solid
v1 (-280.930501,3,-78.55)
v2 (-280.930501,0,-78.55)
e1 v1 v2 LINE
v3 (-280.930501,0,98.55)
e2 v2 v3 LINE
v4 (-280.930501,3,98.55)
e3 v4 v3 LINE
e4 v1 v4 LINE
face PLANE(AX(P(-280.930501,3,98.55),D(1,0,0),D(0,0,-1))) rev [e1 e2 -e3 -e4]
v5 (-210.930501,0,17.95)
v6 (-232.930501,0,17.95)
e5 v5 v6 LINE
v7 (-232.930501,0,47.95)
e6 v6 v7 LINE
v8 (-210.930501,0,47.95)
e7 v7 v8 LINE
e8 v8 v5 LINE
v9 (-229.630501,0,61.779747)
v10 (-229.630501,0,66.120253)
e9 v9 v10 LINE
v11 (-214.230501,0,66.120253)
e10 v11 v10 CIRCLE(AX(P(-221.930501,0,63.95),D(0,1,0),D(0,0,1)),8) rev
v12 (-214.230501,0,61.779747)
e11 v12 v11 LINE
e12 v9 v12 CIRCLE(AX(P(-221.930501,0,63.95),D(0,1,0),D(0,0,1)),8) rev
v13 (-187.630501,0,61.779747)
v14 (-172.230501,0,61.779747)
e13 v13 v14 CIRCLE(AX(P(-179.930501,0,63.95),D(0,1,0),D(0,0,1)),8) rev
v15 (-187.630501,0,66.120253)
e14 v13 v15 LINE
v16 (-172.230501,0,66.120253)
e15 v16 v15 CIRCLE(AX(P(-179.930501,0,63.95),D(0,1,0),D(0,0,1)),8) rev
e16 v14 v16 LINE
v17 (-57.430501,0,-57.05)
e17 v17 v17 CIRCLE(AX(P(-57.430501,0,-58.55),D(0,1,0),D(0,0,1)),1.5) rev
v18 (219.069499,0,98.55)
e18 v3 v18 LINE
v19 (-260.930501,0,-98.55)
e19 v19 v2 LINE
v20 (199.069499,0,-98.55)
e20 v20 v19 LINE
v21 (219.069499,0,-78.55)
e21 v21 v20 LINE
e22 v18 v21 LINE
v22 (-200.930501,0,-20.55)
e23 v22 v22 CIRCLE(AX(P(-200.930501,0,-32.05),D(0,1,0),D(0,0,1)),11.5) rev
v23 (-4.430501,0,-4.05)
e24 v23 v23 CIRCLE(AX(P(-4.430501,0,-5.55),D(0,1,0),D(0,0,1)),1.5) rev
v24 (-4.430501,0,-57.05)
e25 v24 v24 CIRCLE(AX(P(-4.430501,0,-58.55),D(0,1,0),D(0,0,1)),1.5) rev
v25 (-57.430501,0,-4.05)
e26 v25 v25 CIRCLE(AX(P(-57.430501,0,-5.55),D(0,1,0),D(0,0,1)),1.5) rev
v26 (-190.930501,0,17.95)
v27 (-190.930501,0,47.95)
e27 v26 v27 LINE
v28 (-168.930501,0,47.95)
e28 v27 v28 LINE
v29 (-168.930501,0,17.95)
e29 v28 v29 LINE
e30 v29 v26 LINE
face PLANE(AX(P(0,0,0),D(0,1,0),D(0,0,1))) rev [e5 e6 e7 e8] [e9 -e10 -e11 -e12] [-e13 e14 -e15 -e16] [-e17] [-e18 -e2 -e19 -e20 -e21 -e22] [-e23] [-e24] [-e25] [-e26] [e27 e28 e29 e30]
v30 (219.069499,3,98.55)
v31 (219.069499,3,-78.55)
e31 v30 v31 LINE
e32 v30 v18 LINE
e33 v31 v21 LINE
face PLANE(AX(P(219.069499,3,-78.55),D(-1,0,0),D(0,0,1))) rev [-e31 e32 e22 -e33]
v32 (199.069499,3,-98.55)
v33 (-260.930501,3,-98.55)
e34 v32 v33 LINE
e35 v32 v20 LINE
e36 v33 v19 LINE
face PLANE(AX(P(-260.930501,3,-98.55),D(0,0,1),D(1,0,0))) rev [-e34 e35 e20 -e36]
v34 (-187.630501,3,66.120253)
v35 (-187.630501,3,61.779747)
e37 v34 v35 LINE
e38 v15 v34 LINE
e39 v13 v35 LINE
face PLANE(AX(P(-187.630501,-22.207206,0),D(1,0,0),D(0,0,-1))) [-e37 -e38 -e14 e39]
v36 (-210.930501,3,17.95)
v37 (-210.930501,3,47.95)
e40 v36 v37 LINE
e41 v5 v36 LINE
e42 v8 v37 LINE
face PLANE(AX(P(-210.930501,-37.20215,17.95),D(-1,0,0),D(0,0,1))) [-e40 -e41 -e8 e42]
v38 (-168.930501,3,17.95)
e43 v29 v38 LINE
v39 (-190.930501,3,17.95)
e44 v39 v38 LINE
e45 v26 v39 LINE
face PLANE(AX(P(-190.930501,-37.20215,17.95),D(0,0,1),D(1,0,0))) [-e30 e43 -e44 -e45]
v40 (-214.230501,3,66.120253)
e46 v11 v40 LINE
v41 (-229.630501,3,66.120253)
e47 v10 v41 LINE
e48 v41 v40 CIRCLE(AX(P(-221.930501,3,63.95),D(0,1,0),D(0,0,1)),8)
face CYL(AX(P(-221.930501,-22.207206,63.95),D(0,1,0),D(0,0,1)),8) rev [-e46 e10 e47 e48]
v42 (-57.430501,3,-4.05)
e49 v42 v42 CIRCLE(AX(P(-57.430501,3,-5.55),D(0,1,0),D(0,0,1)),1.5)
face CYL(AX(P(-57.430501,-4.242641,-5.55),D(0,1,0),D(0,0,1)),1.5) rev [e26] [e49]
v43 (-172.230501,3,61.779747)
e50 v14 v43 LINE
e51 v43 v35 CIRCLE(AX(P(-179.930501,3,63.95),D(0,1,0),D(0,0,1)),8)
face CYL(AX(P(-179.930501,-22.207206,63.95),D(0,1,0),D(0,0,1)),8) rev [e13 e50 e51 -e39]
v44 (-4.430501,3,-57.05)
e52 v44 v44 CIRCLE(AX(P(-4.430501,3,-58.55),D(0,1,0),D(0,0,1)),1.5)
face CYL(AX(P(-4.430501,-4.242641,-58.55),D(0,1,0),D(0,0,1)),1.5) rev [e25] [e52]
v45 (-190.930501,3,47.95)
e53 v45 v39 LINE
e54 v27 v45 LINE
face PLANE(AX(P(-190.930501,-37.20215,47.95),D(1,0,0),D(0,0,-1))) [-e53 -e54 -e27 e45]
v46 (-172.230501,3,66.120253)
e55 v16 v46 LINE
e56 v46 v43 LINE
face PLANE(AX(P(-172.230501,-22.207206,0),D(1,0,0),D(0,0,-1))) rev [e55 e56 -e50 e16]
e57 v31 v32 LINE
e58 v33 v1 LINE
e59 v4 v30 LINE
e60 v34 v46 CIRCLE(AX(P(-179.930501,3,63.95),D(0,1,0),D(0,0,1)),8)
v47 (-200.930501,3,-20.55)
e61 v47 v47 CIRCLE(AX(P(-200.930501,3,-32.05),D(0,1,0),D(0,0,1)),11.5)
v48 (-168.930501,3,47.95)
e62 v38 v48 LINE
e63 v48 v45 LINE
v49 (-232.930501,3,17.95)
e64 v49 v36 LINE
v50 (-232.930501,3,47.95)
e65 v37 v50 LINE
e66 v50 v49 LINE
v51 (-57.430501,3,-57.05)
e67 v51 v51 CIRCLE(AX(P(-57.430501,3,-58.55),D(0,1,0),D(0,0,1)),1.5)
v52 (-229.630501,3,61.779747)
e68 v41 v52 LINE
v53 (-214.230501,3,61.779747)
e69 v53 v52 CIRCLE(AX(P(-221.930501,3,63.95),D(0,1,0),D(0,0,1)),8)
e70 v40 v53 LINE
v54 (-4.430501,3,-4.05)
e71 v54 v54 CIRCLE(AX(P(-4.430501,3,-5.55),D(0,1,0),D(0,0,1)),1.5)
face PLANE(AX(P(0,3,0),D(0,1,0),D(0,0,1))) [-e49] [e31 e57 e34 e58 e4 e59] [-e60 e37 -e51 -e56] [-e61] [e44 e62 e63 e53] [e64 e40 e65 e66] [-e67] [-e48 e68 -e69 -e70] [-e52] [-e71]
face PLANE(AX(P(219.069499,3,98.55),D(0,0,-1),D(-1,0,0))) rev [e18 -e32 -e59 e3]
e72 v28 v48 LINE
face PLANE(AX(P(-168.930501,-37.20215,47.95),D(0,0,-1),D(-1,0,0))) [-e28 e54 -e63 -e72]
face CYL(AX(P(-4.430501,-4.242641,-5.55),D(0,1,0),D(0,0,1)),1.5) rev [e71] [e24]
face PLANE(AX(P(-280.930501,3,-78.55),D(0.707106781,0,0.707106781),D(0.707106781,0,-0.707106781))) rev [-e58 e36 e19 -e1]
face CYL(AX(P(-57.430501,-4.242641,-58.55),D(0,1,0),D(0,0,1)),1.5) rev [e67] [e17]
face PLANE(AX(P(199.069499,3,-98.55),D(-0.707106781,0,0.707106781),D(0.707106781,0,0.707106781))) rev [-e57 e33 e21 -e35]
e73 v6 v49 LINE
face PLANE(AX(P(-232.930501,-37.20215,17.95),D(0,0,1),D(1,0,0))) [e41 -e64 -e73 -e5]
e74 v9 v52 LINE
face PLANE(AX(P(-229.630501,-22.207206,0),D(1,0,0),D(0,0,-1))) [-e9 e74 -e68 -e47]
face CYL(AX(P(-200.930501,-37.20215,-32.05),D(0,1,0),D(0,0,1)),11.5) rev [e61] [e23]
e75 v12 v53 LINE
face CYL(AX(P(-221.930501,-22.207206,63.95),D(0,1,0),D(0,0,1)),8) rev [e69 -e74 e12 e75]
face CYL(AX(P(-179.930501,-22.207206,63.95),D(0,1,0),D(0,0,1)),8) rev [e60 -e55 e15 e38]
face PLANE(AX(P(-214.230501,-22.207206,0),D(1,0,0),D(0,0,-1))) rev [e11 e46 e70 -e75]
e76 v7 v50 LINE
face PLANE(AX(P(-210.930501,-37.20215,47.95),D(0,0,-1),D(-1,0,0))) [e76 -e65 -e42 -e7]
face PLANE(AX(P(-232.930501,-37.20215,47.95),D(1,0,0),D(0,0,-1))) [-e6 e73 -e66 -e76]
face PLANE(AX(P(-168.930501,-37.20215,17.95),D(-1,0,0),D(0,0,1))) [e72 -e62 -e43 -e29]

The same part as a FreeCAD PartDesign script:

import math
import FreeCAD as App
import Part
import Sketcher

doc = App.newDocument("Part")
params = doc.addObject("Spreadsheet::Sheet", "Params")
for row, (alias, value) in enumerate([
    ("sketch1_width", "460 mm"),
    ("sketch1_width2", "500 mm"),
    ("sketch1_height", "177.1 mm"),
    ("pad1_length", "3 mm"),
    ("sketch2_diameter", "3 mm"),
    ("pocket1_length", "3 mm"),
    ("sketch3_diameter", "23 mm"),
    ("sketch3_width", "22 mm"),
    ("sketch3_height", "30 mm"),
    ("pocket2_length", "3 mm"),
    ("sketch4_radius", "8 mm"),
    ("pocket3_length", "3 mm"),
], start=1):
    params.set(f"A{row}", alias)
    params.set(f"B{row}", "=" + value)
    params.setAlias(f"B{row}", alias)

body = doc.addObject("PartDesign::Body", "Body")

# Sketch on XZ plane
sketch1 = doc.addObject("Sketcher::SketchObject", "Sketch")
body.addObject(sketch1)
sketch1.AttachmentSupport = (doc.XZ_Plane, [""])
sketch1.MapMode = "FlatFace"
sketch1.addGeometry([
    Part.LineSegment(App.Vector(219.069499, 98.55, 0), App.Vector(219.069499, -78.55, 0)),  # 0
    Part.LineSegment(App.Vector(219.069499, -78.55, 0), App.Vector(199.069499, -98.55, 0)),  # 1
    Part.LineSegment(App.Vector(199.069499, -98.55, 0), App.Vector(-260.930501, -98.55, 0)),  # 2
    Part.LineSegment(App.Vector(-260.930501, -98.55, 0), App.Vector(-280.930501, -78.55, 0)),  # 3
    Part.LineSegment(App.Vector(-280.930501, -78.55, 0), App.Vector(-280.930501, 98.55, 0)),  # 4
    Part.LineSegment(App.Vector(-280.930501, 98.55, 0), App.Vector(219.069499, 98.55, 0)),  # 5
], False)
sketch1.addConstraint([
    Sketcher.Constraint("Coincident", 0, 2, 1, 1),
    Sketcher.Constraint("Coincident", 1, 2, 2, 1),
    Sketcher.Constraint("Coincident", 2, 2, 3, 1),
    Sketcher.Constraint("Coincident", 3, 2, 4, 1),
    Sketcher.Constraint("Coincident", 4, 2, 5, 1),
    Sketcher.Constraint("Coincident", 5, 2, 0, 1),
    Sketcher.Constraint("Vertical", 0),
    Sketcher.Constraint("Horizontal", 2),
    Sketcher.Constraint("Vertical", 4),
    Sketcher.Constraint("Horizontal", 5),
    Sketcher.Constraint("Perpendicular", 1, 3),
    Sketcher.Constraint("Horizontal", 0, 2, 3, 2),
    Sketcher.Constraint("Equal", 1, 3),
    Sketcher.Constraint("DistanceX", 2, 2, 2, 1, 460.0),
    Sketcher.Constraint("DistanceX", 5, 1, 5, 2, 500.0),
    Sketcher.Constraint("DistanceY", 0, 2, 0, 1, 177.1),
    Sketcher.Constraint("DistanceY", 0, 2, -1, 1, 78.55),
    Sketcher.Constraint("DistanceX", -1, 1, 0, 2, 219.069499),
])
sketch1.setExpression("Constraints[13]", "Params.sketch1_width")
sketch1.setExpression("Constraints[14]", "Params.sketch1_width2")
sketch1.setExpression("Constraints[15]", "Params.sketch1_height")
pad1 = doc.addObject("PartDesign::Pad", "Pad")
body.addObject(pad1)
pad1.Profile = sketch1
pad1.setExpression("Length", "Params.pad1_length")
pad1.Reversed = True

# Sketch on XZ plane
sketch2 = doc.addObject("Sketcher::SketchObject", "Sketch001")
body.addObject(sketch2)
sketch2.AttachmentSupport = (doc.XZ_Plane, [""])
sketch2.MapMode = "FlatFace"
sketch2.AttachmentOffset = App.Placement(App.Vector(0, 0, -3), App.Rotation())
sketch2.addGeometry([
    Part.Circle(App.Vector(-4.430501, -5.55, 0), App.Vector(0, 0, 1), 1.5),
    Part.Circle(App.Vector(-57.430501, -5.55, 0), App.Vector(0, 0, 1), 1.5),
    Part.Circle(App.Vector(-57.430501, -58.55, 0), App.Vector(0, 0, 1), 1.5),
    Part.Circle(App.Vector(-4.430501, -58.55, 0), App.Vector(0, 0, 1), 1.5),
], False)
sketch2.addConstraint([
    Sketcher.Constraint("Equal", 0, 1),
    Sketcher.Constraint("Equal", 1, 2),
    Sketcher.Constraint("Equal", 2, 3),
    Sketcher.Constraint("Horizontal", 0, 3, 1, 3),
    Sketcher.Constraint("Horizontal", 2, 3, 3, 3),
    Sketcher.Constraint("Vertical", 1, 3, 2, 3),
    Sketcher.Constraint("Vertical", 0, 3, 3, 3),
    Sketcher.Constraint("Diameter", 0, 3.0),
    Sketcher.Constraint("DistanceX", 1, 3, 0, 3, 53.0),
    Sketcher.Constraint("DistanceY", 2, 3, 1, 3, 53.0),
    Sketcher.Constraint("DistanceY", 0, 3, -1, 1, 5.55),
    Sketcher.Constraint("DistanceX", 0, 3, -1, 1, 4.430501),
])
sketch2.setExpression("Constraints[7]", "Params.sketch2_diameter")
pocket1 = doc.addObject("PartDesign::Pocket", "Pocket")
body.addObject(pocket1)
pocket1.Profile = sketch2
pocket1.setExpression("Length", "Params.pocket1_length")
pocket1.Reversed = True

# Sketch on XZ plane
sketch3 = doc.addObject("Sketcher::SketchObject", "Sketch002")
body.addObject(sketch3)
sketch3.AttachmentSupport = (doc.XZ_Plane, [""])
sketch3.MapMode = "FlatFace"
sketch3.AttachmentOffset = App.Placement(App.Vector(0, 0, -3), App.Rotation())
sketch3.addGeometry([
    Part.Circle(App.Vector(-200.930501, -32.05, 0), App.Vector(0, 0, 1), 11.5),  # 0
    Part.LineSegment(App.Vector(-232.930501, 17.95, 0), App.Vector(-232.930501, 47.95, 0)),  # 1
    Part.LineSegment(App.Vector(-232.930501, 47.95, 0), App.Vector(-210.930501, 47.95, 0)),  # 2
    Part.LineSegment(App.Vector(-210.930501, 47.95, 0), App.Vector(-210.930501, 17.95, 0)),  # 3
    Part.LineSegment(App.Vector(-210.930501, 17.95, 0), App.Vector(-232.930501, 17.95, 0)),  # 4
    Part.LineSegment(App.Vector(-190.930501, 17.95, 0), App.Vector(-190.930501, 47.95, 0)),  # 5
    Part.LineSegment(App.Vector(-190.930501, 47.95, 0), App.Vector(-168.930501, 47.95, 0)),  # 6
    Part.LineSegment(App.Vector(-168.930501, 47.95, 0), App.Vector(-168.930501, 17.95, 0)),  # 7
    Part.LineSegment(App.Vector(-168.930501, 17.95, 0), App.Vector(-190.930501, 17.95, 0)),  # 8
], False)
sketch3.addConstraint([
    Sketcher.Constraint("Coincident", 1, 2, 2, 1),
    Sketcher.Constraint("Coincident", 2, 2, 3, 1),
    Sketcher.Constraint("Coincident", 3, 2, 4, 1),
    Sketcher.Constraint("Coincident", 4, 2, 1, 1),
    Sketcher.Constraint("Coincident", 5, 2, 6, 1),
    Sketcher.Constraint("Coincident", 6, 2, 7, 1),
    Sketcher.Constraint("Coincident", 7, 2, 8, 1),
    Sketcher.Constraint("Coincident", 8, 2, 5, 1),
    Sketcher.Constraint("Vertical", 1),
    Sketcher.Constraint("Horizontal", 2),
    Sketcher.Constraint("Vertical", 3),
    Sketcher.Constraint("Horizontal", 4),
    Sketcher.Constraint("Vertical", 5),
    Sketcher.Constraint("Horizontal", 6),
    Sketcher.Constraint("Vertical", 7),
    Sketcher.Constraint("Horizontal", 8),
    Sketcher.Constraint("Horizontal", 2, 2, 5, 2),
    Sketcher.Constraint("Horizontal", 4, 2, 7, 2),
    Sketcher.Constraint("Equal", 4, 6),
    Sketcher.Constraint("Diameter", 0, 23.0),
    Sketcher.Constraint("DistanceX", 2, 1, 2, 2, 22.0),
    Sketcher.Constraint("DistanceY", 1, 1, 1, 2, 30.0),
    Sketcher.Constraint("DistanceX", 1, 2, 0, 3, 32.0),
    Sketcher.Constraint("DistanceY", 0, 3, 1, 2, 80.0),
    Sketcher.Constraint("DistanceX", 2, 2, 5, 2, 20.0),
    Sketcher.Constraint("DistanceY", 0, 3, -1, 1, 32.05),
    Sketcher.Constraint("DistanceX", 0, 3, -1, 1, 200.930501),
])
sketch3.setExpression("Constraints[19]", "Params.sketch3_diameter")
sketch3.setExpression("Constraints[20]", "Params.sketch3_width")
sketch3.setExpression("Constraints[21]", "Params.sketch3_height")
pocket2 = doc.addObject("PartDesign::Pocket", "Pocket001")
body.addObject(pocket2)
pocket2.Profile = sketch3
pocket2.setExpression("Length", "Params.pocket2_length")
pocket2.Reversed = True

# Sketch on XZ plane
sketch4 = doc.addObject("Sketcher::SketchObject", "Sketch003")
body.addObject(sketch4)
sketch4.AttachmentSupport = (doc.XZ_Plane, [""])
sketch4.MapMode = "FlatFace"
sketch4.AttachmentOffset = App.Placement(App.Vector(0, 0, -3), App.Rotation())
sketch4.addGeometry([
    Part.LineSegment(App.Vector(-187.630501, 61.779747, 0), App.Vector(-187.630501, 66.120253, 0)),  # 0
    Part.ArcOfCircle(Part.Circle(App.Vector(-179.930501, 63.95, 0), App.Vector(0, 0, 1), 8), math.radians(15.740549), math.radians(164.259451)),  # 1
    Part.LineSegment(App.Vector(-172.230501, 66.120253, 0), App.Vector(-172.230501, 61.779747, 0)),  # 2
    Part.ArcOfCircle(Part.Circle(App.Vector(-179.930501, 63.95, 0), App.Vector(0, 0, 1), 8), math.radians(-164.259451), math.radians(-15.740549)),  # 3
    Part.LineSegment(App.Vector(-229.630501, 61.779747, 0), App.Vector(-229.630501, 66.120253, 0)),  # 4
    Part.ArcOfCircle(Part.Circle(App.Vector(-221.930501, 63.95, 0), App.Vector(0, 0, 1), 8), math.radians(15.740549), math.radians(164.259451)),  # 5
    Part.LineSegment(App.Vector(-214.230501, 66.120253, 0), App.Vector(-214.230501, 61.779747, 0)),  # 6
    Part.ArcOfCircle(Part.Circle(App.Vector(-221.930501, 63.95, 0), App.Vector(0, 0, 1), 8), math.radians(-164.259451), math.radians(-15.740549)),  # 7
], False)
sketch4.addConstraint([
    Sketcher.Constraint("Coincident", 0, 2, 1, 2),
    Sketcher.Constraint("Coincident", 1, 1, 2, 1),
    Sketcher.Constraint("Coincident", 2, 2, 3, 2),
    Sketcher.Constraint("Coincident", 3, 1, 0, 1),
    Sketcher.Constraint("Coincident", 4, 2, 5, 2),
    Sketcher.Constraint("Coincident", 5, 1, 6, 1),
    Sketcher.Constraint("Coincident", 6, 2, 7, 2),
    Sketcher.Constraint("Coincident", 7, 1, 4, 1),
    Sketcher.Constraint("Vertical", 0),
    Sketcher.Constraint("Vertical", 2),
    Sketcher.Constraint("Vertical", 4),
    Sketcher.Constraint("Vertical", 6),
    Sketcher.Constraint("Coincident", 3, 3, 1, 3),
    Sketcher.Constraint("Coincident", 7, 3, 5, 3),
    Sketcher.Constraint("Equal", 1, 3),
    Sketcher.Constraint("Equal", 3, 5),
    Sketcher.Constraint("Equal", 5, 7),
    Sketcher.Constraint("Horizontal", 3, 3, 5, 3),
    Sketcher.Constraint("Horizontal", 0, 2, 1, 1),
    Sketcher.Constraint("Horizontal", 1, 1, 4, 2),
    Sketcher.Constraint("Horizontal", 4, 2, 5, 1),
    Sketcher.Constraint("Radius", 1, 8.0),
    Sketcher.Constraint("DistanceX", 5, 3, 1, 3, 42.0),
    Sketcher.Constraint("DistanceX", 0, 2, 1, 3, 7.7),
    Sketcher.Constraint("DistanceY", -1, 1, 1, 3, 63.95),
    Sketcher.Constraint("DistanceX", 1, 3, -1, 1, 179.930501),
])
sketch4.setExpression("Constraints[21]", "Params.sketch4_radius")
pocket3 = doc.addObject("PartDesign::Pocket", "Pocket002")
body.addObject(pocket3)
pocket3.Profile = sketch4
pocket3.setExpression("Length", "Params.pocket3_length")
pocket3.Reversed = True

doc.recompute()
